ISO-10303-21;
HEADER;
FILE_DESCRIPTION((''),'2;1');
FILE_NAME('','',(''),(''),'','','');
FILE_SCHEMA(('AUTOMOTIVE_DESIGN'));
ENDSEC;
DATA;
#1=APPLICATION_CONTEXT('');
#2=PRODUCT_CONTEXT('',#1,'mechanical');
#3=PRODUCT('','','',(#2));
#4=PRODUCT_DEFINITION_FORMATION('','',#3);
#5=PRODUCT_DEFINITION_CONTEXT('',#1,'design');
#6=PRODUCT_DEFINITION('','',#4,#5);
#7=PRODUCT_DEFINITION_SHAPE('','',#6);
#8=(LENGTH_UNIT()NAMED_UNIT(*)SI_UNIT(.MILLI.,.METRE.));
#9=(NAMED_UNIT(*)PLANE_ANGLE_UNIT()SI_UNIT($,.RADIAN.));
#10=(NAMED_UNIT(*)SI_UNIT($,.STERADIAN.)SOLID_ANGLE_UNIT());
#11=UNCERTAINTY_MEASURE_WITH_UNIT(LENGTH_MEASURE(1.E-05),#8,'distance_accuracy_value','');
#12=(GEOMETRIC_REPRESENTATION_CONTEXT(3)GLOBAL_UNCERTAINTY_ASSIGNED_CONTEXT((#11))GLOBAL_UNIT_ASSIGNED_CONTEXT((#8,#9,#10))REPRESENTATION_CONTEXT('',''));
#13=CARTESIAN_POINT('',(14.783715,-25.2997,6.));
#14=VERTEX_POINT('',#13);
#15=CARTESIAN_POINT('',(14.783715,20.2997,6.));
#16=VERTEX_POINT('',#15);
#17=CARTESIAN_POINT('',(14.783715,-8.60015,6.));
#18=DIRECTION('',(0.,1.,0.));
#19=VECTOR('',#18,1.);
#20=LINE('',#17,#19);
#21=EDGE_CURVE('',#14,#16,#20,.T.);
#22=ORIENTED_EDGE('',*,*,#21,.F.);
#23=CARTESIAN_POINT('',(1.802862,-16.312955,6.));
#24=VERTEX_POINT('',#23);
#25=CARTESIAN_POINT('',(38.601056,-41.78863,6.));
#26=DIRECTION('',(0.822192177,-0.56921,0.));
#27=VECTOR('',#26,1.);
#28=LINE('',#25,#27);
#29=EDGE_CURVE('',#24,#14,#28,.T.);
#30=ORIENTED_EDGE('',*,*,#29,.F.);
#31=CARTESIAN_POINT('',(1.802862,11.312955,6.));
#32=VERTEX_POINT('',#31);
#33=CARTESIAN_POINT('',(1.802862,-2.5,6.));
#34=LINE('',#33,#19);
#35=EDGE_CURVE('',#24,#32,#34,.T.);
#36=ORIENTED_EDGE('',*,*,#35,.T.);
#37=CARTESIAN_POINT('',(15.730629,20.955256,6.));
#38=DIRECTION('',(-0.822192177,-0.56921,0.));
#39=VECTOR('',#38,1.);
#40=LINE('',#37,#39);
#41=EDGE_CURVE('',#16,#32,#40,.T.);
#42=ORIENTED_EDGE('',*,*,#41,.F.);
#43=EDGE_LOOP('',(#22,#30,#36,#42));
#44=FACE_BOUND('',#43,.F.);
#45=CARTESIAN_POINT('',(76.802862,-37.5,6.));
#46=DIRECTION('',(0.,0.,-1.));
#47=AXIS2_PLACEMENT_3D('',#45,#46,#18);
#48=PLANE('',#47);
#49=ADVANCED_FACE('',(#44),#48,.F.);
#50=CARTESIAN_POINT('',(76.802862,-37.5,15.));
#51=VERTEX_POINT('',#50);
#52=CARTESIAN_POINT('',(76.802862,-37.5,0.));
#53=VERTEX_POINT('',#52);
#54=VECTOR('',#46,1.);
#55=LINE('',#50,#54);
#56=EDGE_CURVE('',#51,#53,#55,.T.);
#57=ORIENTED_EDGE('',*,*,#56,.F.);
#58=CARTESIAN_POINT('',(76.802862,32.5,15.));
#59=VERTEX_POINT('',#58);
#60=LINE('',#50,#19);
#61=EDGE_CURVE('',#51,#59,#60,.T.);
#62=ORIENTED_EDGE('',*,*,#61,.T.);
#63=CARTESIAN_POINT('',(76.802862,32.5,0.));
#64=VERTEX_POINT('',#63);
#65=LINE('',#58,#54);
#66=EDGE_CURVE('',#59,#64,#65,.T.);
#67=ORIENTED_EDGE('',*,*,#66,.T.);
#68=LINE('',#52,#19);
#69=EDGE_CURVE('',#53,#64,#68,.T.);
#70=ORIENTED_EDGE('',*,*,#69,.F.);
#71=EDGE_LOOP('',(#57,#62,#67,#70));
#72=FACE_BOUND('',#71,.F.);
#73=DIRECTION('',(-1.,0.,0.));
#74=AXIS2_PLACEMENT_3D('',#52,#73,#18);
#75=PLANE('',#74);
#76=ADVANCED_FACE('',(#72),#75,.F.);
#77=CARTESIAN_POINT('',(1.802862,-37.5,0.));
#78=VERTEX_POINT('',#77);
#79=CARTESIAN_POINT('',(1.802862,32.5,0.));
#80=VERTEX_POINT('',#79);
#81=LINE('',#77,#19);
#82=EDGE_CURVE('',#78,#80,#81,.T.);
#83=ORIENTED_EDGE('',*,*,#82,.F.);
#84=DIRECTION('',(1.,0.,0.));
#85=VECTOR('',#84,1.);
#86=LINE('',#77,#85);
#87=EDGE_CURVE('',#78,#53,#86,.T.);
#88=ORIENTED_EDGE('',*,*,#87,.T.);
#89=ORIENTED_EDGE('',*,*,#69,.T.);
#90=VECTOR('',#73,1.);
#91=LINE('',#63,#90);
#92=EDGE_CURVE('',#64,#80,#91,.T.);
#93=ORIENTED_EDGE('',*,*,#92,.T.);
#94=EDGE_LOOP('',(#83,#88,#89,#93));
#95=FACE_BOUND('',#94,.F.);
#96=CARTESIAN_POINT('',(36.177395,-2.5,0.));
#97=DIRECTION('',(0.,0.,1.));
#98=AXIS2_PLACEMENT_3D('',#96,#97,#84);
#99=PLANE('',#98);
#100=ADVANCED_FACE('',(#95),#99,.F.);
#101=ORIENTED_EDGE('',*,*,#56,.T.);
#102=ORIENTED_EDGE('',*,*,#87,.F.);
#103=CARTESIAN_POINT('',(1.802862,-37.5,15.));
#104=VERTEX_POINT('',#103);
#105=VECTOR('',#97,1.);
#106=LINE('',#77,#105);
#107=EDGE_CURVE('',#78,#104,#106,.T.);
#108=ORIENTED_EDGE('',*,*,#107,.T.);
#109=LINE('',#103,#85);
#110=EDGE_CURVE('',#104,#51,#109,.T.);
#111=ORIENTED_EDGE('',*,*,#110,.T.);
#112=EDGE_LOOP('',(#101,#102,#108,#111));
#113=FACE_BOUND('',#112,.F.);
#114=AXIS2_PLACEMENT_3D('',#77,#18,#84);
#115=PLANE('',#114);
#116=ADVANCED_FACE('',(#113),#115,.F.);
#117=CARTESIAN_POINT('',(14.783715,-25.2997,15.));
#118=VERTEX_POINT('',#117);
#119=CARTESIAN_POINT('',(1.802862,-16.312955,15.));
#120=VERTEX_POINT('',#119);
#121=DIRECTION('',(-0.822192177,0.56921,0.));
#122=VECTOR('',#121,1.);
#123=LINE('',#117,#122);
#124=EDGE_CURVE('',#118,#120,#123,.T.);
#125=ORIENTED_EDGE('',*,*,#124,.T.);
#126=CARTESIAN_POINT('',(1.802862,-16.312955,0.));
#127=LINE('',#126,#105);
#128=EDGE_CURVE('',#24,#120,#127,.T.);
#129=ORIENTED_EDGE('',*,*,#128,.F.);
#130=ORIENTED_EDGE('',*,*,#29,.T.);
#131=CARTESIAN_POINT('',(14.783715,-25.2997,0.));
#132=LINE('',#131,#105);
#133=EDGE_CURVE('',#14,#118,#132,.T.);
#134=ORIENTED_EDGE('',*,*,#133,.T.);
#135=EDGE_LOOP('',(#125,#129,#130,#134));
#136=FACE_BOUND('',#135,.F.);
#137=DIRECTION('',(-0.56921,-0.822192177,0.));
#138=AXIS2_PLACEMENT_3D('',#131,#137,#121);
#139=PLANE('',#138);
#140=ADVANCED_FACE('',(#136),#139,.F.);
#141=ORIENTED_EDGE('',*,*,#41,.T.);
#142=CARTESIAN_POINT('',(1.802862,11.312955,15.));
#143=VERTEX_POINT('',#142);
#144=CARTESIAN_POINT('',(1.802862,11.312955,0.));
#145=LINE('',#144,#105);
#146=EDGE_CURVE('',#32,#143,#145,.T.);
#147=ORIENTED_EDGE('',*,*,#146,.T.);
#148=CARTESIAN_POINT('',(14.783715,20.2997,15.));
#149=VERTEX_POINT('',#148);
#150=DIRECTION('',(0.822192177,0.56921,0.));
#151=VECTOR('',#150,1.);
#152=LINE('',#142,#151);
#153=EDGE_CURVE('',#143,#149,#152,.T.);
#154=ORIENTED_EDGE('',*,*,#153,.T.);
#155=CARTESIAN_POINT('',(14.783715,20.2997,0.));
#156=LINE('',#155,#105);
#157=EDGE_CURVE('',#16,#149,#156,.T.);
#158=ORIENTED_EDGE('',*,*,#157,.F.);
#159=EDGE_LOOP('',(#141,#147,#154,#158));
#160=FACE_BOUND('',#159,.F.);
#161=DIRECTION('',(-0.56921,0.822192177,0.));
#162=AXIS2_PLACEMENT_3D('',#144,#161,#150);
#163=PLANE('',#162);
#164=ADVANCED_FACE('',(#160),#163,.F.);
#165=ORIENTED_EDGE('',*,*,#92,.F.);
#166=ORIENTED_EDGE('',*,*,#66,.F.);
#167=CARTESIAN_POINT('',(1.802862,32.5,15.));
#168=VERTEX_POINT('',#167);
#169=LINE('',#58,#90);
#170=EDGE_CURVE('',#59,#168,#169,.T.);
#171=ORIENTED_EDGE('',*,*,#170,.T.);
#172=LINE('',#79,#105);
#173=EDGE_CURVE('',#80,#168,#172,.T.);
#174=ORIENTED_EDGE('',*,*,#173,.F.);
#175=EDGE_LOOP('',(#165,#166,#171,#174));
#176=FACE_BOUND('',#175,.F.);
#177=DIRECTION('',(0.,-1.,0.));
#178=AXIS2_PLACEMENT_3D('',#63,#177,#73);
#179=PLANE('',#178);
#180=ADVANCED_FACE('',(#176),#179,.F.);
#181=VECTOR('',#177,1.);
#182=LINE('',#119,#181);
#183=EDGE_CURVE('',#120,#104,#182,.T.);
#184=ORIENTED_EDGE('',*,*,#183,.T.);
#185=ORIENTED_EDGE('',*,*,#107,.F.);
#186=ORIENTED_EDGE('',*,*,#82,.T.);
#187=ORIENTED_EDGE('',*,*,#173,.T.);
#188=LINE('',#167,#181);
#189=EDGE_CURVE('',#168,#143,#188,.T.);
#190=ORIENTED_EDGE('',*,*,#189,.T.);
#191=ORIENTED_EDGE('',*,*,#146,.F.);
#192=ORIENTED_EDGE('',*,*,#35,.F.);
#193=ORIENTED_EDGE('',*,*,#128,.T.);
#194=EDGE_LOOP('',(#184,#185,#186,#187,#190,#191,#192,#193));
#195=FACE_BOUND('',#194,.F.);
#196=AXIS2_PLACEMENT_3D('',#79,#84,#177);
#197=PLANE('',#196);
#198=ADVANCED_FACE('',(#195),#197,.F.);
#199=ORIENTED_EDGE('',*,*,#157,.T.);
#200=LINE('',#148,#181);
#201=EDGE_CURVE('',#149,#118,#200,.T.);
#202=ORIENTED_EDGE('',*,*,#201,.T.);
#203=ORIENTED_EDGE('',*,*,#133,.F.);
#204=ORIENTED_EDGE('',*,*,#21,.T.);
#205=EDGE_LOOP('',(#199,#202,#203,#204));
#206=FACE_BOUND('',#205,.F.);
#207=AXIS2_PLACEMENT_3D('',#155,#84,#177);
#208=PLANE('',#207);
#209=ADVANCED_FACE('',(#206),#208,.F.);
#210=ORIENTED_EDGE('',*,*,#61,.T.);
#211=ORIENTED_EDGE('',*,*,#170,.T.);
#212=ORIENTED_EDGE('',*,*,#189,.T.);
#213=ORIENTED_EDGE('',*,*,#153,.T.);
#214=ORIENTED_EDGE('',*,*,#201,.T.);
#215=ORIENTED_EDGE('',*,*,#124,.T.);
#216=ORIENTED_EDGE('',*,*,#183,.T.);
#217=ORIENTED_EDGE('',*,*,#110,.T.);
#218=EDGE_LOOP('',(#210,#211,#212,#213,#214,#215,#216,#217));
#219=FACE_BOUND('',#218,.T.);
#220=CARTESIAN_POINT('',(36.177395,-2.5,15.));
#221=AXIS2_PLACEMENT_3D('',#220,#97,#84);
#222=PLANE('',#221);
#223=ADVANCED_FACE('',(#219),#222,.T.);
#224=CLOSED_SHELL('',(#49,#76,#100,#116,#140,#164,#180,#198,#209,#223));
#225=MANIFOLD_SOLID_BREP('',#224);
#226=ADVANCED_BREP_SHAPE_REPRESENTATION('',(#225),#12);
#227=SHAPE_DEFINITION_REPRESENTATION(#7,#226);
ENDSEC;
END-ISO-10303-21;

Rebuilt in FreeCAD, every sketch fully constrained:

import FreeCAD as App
import Part
import Sketcher
from FreeCAD import Vector

doc = App.newDocument("Part")
body = doc.addObject("PartDesign::Body", "Body")

sketch1 = body.newObject("Sketcher::SketchObject", "Sketch")
sketch1.AttachmentSupport = (doc.getObject("XY_Plane"), [""])
sketch1.MapMode = "FlatFace"
sketch1.addGeometry([
    Part.LineSegment(Vector(76.802862, 32.5, 0), Vector(1.802862, 32.5, 0)),
    Part.LineSegment(Vector(1.802862, 32.5, 0), Vector(1.802862, 11.312955, 0)),
    Part.LineSegment(Vector(1.802862, 11.312955, 0), Vector(14.783715, 20.2997, 0)),
    Part.LineSegment(Vector(14.783715, 20.2997, 0), Vector(14.783715, -25.2997, 0)),
    Part.LineSegment(Vector(14.783715, -25.2997, 0), Vector(1.802862, -16.312955, 0)),
    Part.LineSegment(Vector(1.802862, -16.312955, 0), Vector(1.802862, -37.5, 0)),
    Part.LineSegment(Vector(1.802862, -37.5, 0), Vector(76.802862, -37.5, 0)),
    Part.LineSegment(Vector(76.802862, -37.5, 0), Vector(76.802862, 32.5, 0)),
], False)
sketch1.addConstraint([
    Sketcher.Constraint("Coincident", 0, 2, 1, 1),
    Sketcher.Constraint("Coincident", 1, 2, 2, 1),
    Sketcher.Constraint("Coincident", 2, 2, 3, 1),
    Sketcher.Constraint("Coincident", 3, 2, 4, 1),
    Sketcher.Constraint("Coincident", 4, 2, 5, 1),
    Sketcher.Constraint("Coincident", 5, 2, 6, 1),
    Sketcher.Constraint("Coincident", 6, 2, 7, 1),
    Sketcher.Constraint("Coincident", 7, 2, 0, 1),
    Sketcher.Constraint("Horizontal", 0),
    Sketcher.Constraint("Vertical", 1),
    Sketcher.Constraint("Vertical", 3),
    Sketcher.Constraint("Vertical", 5),
    Sketcher.Constraint("Horizontal", 6),
    Sketcher.Constraint("Vertical", 7),
    Sketcher.Constraint("Vertical", 1, 2, 4, 2),
    Sketcher.Constraint("Equal", 1, 5),
    Sketcher.Constraint("Equal", 2, 4),
    Sketcher.Constraint("DistanceX", 0, 2, 0, 1, 75.0),
    Sketcher.Constraint("DistanceY", 7, 1, 7, 2, 70.0),
    Sketcher.Constraint("DistanceY", -1, 1, 0, 2, 32.5),
    Sketcher.Constraint("DistanceY", 3, 2, 3, 1, 45.599401),
    Sketcher.Constraint("Distance", 2, 15.788101),
    Sketcher.Constraint("DistanceY", 1, 2, 1, 1, 21.187045),
    Sketcher.Constraint("DistanceX", -1, 1, 0, 2, 1.802862),
])
pad1 = body.newObject("PartDesign::Pad", "Pad")
pad1.Profile = sketch1
pad1.Length = 15

sketch2 = body.newObject("Sketcher::SketchObject", "Sketch001")
sketch2.AttachmentSupport = (doc.getObject("YZ_Plane"), [""])
sketch2.MapMode = "FlatFace"
sketch2.AttachmentOffset = App.Placement(Vector(0, 0, 76.802862), App.Rotation())
sketch2.addGeometry([
    Part.LineSegment(Vector(-37.5, 6, 0), Vector(-37.5, 0, 0)),
    Part.LineSegment(Vector(-37.5, 0, 0), Vector(32.5, 0, 0)),
    Part.LineSegment(Vector(32.5, 0, 0), Vector(32.5, 6, 0)),
    Part.LineSegment(Vector(32.5, 6, 0), Vector(-37.5, 6, 0)),
], False)
sketch2.addConstraint([
    Sketcher.Constraint("Coincident", 0, 2, 1, 1),
    Sketcher.Constraint("Coincident", 1, 2, 2, 1),
    Sketcher.Constraint("Coincident", 2, 2, 3, 1),
    Sketcher.Constraint("Coincident", 3, 2, 0, 1),
    Sketcher.Constraint("Vertical", 0),
    Sketcher.Constraint("Horizontal", 1),
    Sketcher.Constraint("Vertical", 2),
    Sketcher.Constraint("Horizontal", 3),
    Sketcher.Constraint("PointOnObject", 0, 2, -1),
    Sketcher.Constraint("DistanceX", 1, 1, 1, 2, 70.0),
    Sketcher.Constraint("DistanceY", 0, 2, 0, 1, 6.0),
    Sketcher.Constraint("DistanceX", 0, 2, -1, 1, 37.5),
])
pad2 = body.newObject("PartDesign::Pad", "Pad001")
pad2.Profile = sketch2
pad2.Length = 75
pad2.Reversed = True

doc.recompute()
